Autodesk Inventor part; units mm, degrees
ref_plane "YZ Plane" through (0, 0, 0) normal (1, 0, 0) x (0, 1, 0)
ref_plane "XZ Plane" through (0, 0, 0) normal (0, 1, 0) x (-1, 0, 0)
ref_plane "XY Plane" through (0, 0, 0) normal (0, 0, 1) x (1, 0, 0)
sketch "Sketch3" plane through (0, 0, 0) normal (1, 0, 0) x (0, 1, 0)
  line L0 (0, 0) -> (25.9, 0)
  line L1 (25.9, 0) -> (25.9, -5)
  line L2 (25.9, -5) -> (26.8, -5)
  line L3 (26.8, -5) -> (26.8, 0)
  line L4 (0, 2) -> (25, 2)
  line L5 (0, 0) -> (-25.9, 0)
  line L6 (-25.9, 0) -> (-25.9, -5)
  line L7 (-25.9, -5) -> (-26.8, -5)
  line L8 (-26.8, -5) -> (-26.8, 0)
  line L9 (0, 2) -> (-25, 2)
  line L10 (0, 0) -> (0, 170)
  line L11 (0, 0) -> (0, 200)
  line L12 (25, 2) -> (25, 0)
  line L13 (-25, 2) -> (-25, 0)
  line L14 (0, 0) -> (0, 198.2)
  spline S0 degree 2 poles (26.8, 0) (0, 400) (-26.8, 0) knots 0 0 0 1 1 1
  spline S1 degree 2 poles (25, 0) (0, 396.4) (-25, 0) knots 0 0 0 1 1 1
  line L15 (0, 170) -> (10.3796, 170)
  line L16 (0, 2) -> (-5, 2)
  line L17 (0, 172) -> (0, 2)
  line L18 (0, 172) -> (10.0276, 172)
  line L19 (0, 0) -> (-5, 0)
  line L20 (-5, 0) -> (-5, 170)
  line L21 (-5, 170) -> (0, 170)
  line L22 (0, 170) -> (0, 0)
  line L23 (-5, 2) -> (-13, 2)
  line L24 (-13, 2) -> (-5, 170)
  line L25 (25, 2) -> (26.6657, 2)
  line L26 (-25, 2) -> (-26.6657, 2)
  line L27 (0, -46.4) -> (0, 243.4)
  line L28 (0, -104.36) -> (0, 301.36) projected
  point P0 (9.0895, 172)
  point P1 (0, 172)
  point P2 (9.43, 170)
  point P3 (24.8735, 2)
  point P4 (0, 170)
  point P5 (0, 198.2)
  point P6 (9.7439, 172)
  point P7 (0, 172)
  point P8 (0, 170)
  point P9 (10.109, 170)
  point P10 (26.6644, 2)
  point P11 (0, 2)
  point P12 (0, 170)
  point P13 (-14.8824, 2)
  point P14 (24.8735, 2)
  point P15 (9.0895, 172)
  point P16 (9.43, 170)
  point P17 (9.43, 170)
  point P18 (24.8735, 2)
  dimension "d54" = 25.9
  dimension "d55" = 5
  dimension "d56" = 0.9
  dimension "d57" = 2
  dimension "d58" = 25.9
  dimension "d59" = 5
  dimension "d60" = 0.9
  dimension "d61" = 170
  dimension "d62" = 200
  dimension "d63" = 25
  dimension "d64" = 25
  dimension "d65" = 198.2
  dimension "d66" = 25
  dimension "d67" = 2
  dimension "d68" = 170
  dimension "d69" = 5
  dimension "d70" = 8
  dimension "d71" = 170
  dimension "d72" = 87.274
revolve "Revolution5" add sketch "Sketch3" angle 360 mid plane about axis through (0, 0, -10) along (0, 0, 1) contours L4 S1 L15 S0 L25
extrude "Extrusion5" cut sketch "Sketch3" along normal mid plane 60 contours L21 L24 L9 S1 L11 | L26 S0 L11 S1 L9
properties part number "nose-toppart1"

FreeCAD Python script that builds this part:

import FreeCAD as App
import Part
import Sketcher
from FreeCAD import Vector

doc = App.newDocument("Part")
body = doc.addObject("PartDesign::Body", "Body")

sketch1 = body.newObject("Sketcher::SketchObject", "Sketch")
sketch1.AttachmentSupport = (doc.getObject("YZ_Plane"), [""])
sketch1.MapMode = "FlatFace"
sketch1.addGeometry([
    Part.LineSegment(Vector(24.873545, 2, 0), Vector(26.6657, 2, 0)),
    Part.BSplineCurve([Vector(26.665663, 1.999998, 0), Vector(18.522629, 122.928603, 0), Vector(10.379596, 169.999999, 0)], [3, 3], [0.002506278, 0.30635083], False, 2, [1, 1, 1], False),
    Part.LineSegment(Vector(10.3796, 170, 0), Vector(9.430023, 170, 0)),
    Part.BSplineCurve([Vector(24.873545, 2, 0), Vector(17.151784, 123.816937, 0), Vector(9.430023, 170, 0)], [3, 3], [0.002529101, 0.311399546], False, 2, [1, 1, 1], False),
], False)
sketch1.addConstraint([
    Sketcher.Constraint("Block", 1),
    Sketcher.Constraint("Block", 3),
    Sketcher.Constraint("Coincident", 0, 2, 1, 1),
    Sketcher.Constraint("Coincident", 1, 2, 2, 1),
    Sketcher.Constraint("Coincident", 2, 2, 3, 2),
    Sketcher.Constraint("Coincident", 3, 1, 0, 1),
])
revolution = body.newObject("PartDesign::Revolution", "Revolution")
revolution.Profile = sketch1
revolution.ReferenceAxis = (sketch1, ["V_Axis"])
revolution.Angle = 360

sketch2 = body.newObject("Sketcher::SketchObject", "Sketch001")
sketch2.AttachmentSupport = (doc.getObject("YZ_Plane"), [""])
sketch2.MapMode = "FlatFace"
sketch2.addGeometry([
    Part.LineSegment(Vector(-5, 170, 0), Vector(0, 170, 0)),
    Part.LineSegment(Vector(0, 170, 0), Vector(0, 200, 0)),
    Part.BSplineCurve([Vector(0, 200, 0), Vector(-13.332832, 200, 0), Vector(-26.665663, 1.999998, 0)], [3, 3], [0.5, 0.997493722], False, 2, [1, 1, 1], False),
    Part.LineSegment(Vector(-26.6657, 2, 0), Vector(-13, 2, 0)),
    Part.LineSegment(Vector(-13, 2, 0), Vector(-5, 170, 0)),
], False)
sketch2.addConstraint([
    Sketcher.Constraint("Block", 2),
    Sketcher.Constraint("Coincident", 0, 2, 1, 1),
    Sketcher.Constraint("Coincident", 1, 2, 2, 1),
    Sketcher.Constraint("Coincident", 2, 2, 3, 1),
    Sketcher.Constraint("Coincident", 3, 2, 4, 1),
    Sketcher.Constraint("Coincident", 4, 2, 0, 1),
    Sketcher.Constraint("Horizontal", 0),
    Sketcher.Constraint("Vertical", 1),
    Sketcher.Constraint("Horizontal", 3),
    Sketcher.Constraint("DistanceX", 0, 1, 0, 2, 5.0),
    Sketcher.Constraint("DistanceY", -1, 1, 0, 2, 170.0),
    Sketcher.Constraint("DistanceX", 3, 2, 4, 2, 8.0),
])
pocket1 = body.newObject("PartDesign::Pocket", "Pocket")
pocket1.Profile = sketch2
pocket1.Length = 60
pocket1.Midplane = True

doc.recompute()
